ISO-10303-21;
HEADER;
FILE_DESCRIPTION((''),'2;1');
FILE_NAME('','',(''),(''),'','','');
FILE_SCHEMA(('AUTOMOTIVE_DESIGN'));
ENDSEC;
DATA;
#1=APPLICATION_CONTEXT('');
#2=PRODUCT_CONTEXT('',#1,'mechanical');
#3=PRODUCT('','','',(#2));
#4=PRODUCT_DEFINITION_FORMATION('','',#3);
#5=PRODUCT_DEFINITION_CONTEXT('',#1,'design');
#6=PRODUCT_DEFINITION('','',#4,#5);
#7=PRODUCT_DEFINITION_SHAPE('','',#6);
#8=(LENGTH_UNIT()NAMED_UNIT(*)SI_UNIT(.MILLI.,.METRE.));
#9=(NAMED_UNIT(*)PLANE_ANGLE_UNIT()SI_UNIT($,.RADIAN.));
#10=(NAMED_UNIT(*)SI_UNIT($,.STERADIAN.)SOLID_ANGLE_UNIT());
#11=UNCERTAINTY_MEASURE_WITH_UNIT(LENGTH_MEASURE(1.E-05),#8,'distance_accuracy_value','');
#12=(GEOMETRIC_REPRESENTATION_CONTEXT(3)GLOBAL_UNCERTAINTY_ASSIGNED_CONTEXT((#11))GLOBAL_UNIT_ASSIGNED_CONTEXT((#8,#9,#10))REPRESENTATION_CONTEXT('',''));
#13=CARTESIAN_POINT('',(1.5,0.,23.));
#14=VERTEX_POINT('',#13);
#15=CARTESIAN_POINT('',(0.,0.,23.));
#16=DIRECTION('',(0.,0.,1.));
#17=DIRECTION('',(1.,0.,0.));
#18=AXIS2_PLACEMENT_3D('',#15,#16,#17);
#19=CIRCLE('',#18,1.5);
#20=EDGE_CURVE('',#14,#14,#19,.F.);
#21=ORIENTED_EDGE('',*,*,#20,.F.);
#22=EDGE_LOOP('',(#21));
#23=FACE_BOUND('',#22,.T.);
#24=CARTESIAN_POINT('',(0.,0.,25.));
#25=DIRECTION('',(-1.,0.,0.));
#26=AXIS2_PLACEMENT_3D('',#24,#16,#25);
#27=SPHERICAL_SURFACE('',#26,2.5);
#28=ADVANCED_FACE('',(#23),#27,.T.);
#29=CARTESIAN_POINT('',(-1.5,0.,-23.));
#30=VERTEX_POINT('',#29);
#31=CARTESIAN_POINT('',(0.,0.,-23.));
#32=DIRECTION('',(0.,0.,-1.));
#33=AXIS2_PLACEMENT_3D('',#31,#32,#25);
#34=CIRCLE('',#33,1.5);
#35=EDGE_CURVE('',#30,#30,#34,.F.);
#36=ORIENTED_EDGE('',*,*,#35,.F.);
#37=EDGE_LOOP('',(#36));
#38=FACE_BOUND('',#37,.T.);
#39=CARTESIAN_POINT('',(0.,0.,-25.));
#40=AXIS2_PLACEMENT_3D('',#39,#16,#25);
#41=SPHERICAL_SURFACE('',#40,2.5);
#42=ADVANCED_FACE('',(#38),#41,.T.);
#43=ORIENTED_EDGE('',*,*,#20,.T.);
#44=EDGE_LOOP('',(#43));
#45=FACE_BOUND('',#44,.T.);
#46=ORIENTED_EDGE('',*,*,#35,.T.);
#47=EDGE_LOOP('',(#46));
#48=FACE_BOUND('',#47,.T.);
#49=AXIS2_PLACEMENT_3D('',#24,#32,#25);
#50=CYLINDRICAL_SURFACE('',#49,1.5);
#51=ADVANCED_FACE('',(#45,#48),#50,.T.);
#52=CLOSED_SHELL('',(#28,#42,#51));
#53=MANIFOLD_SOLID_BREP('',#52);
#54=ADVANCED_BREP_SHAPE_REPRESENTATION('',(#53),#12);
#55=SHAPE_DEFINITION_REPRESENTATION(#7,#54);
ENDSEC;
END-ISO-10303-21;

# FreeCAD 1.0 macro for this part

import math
import FreeCAD as App
import Part
import Sketcher

doc = App.newDocument("Part")
params = doc.addObject("Spreadsheet::Sheet", "Params")
for row, (alias, value) in enumerate([
    ("sketch1_diameter", "3 mm"),
    ("pad1_length", "50 mm"),
    ("sketch2_radius", "2.5 mm"),
    ("revolution_angle", "360 deg"),
], start=1):
    params.set(f"A{row}", alias)
    params.set(f"B{row}", "=" + value)
    params.setAlias(f"B{row}", alias)

body = doc.addObject("PartDesign::Body", "Body")

# Sketch on XY plane
sketch1 = body.newObject("Sketcher::SketchObject", "Sketch")
sketch1.AttachmentSupport = (doc.getObject("XY_Plane"), [""])
sketch1.MapMode = "FlatFace"
sketch1.addGeometry(Part.Circle(App.Vector(0, 0, 0), App.Vector(0, 0, 1), 1.5), False)
sketch1.addConstraint(Sketcher.Constraint("Coincident", 0, 3, -1, 1))
sketch1.addConstraint(Sketcher.Constraint("Diameter", 0, 3.0))
sketch1.setExpression("Constraints[1]", "Params.sketch1_diameter")
pad1 = body.newObject("PartDesign::Pad", "Pad")
pad1.Profile = sketch1
pad1.setExpression("Length", "Params.pad1_length")
pad1.Midplane = True

# Sketch on XZ plane
sketch2 = body.newObject("Sketcher::SketchObject", "Sketch001")
sketch2.AttachmentSupport = (doc.getObject("XZ_Plane"), [""])
sketch2.MapMode = "FlatFace"
sketch2.addGeometry(Part.ArcOfCircle(Part.Circle(App.Vector(0, 25, 0), App.Vector(0, 0, 1), 2.5), math.radians(-90), math.radians(90)), False)
sketch2.addGeometry(Part.LineSegment(App.Vector(0, 22.5, 0), App.Vector(0, 27.5, 0)), False)
sketch2.addGeometry(Part.ArcOfCircle(Part.Circle(App.Vector(0, -25, 0), App.Vector(0, 0, 1), 2.5), math.radians(-90), math.radians(90)), False)
sketch2.addGeometry(Part.LineSegment(App.Vector(0, -27.5, 0), App.Vector(0, -22.5, 0)), False)
sketch2.addConstraint(Sketcher.Constraint("Coincident", 0, 1, 1, 1))
sketch2.addConstraint(Sketcher.Constraint("Coincident", 1, 2, 0, 2))
sketch2.addConstraint(Sketcher.Constraint("Coincident", 2, 1, 3, 1))
sketch2.addConstraint(Sketcher.Constraint("Coincident", 3, 2, 2, 2))
sketch2.addConstraint(Sketcher.Constraint("Vertical", 1))
sketch2.addConstraint(Sketcher.Constraint("Vertical", 3))
sketch2.addConstraint(Sketcher.Constraint("Equal", 0, 2))
sketch2.addConstraint(Sketcher.Constraint("Symmetric", 0, 3, 2, 3, -1, 1))
sketch2.addConstraint(Sketcher.Constraint("PointOnObject", 0, 3, -2))
sketch2.addConstraint(Sketcher.Constraint("PointOnObject", 0, 1, -2))
sketch2.addConstraint(Sketcher.Constraint("PointOnObject", 2, 1, -2))
sketch2.addConstraint(Sketcher.Constraint("Radius", 0, 2.5))
sketch2.addConstraint(Sketcher.Constraint("DistanceY", -1, 1, 0, 3, 25.0))
sketch2.setExpression("Constraints[11]", "Params.sketch2_radius")
revolution = body.newObject("PartDesign::Revolution", "Revolution")
revolution.Profile = sketch2
revolution.ReferenceAxis = (sketch2, ["V_Axis"])
revolution.setExpression("Angle", "Params.revolution_angle")

doc.recompute()
